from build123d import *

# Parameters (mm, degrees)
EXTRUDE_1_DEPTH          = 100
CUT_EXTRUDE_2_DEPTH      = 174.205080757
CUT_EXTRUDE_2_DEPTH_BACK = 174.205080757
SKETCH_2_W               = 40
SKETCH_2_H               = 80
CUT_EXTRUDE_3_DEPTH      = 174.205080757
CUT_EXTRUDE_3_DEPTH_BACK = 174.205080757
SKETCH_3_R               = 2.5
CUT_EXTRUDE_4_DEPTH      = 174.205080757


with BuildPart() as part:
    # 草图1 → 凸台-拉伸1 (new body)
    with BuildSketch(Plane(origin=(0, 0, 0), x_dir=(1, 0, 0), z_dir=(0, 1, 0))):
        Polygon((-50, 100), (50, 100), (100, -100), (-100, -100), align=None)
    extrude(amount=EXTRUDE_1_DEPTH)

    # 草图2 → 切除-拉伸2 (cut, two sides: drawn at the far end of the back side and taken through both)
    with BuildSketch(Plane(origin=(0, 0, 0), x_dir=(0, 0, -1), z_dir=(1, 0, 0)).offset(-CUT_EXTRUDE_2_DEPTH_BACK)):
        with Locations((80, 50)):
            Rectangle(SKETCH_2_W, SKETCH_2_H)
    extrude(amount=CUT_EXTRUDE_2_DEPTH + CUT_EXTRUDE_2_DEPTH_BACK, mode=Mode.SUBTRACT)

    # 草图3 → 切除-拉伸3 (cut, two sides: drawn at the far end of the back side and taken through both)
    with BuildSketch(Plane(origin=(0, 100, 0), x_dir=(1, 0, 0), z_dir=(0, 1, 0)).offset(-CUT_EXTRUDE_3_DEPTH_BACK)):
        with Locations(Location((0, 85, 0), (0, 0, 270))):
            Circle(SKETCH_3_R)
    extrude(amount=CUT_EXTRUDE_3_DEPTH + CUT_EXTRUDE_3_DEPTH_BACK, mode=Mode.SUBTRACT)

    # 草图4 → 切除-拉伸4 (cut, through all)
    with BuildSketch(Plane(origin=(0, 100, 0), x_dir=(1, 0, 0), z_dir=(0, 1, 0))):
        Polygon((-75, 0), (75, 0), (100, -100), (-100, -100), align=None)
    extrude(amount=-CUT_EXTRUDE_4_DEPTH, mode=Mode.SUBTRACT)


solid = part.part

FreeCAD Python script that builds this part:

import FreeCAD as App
import Part
import Sketcher

doc = App.newDocument("Part")
body = doc.addObject("PartDesign::Body", "Body")

sketch1 = body.newObject("Sketcher::SketchObject", "Sketch")
sketch1.AttachmentSupport = (doc.getObject("XZ_Plane"), [""])
sketch1.MapMode = "FlatFace"
sketch1.addGeometry([
    Part.LineSegment(App.Vector(50, -100, 0), App.Vector(-50, -100, 0)),
    Part.LineSegment(App.Vector(-50, -100, 0), App.Vector(-100, 100, 0)),
    Part.LineSegment(App.Vector(-100, 100, 0), App.Vector(100, 100, 0)),
    Part.LineSegment(App.Vector(100, 100, 0), App.Vector(50, -100, 0)),
], False)
sketch1.addConstraint([
    Sketcher.Constraint("Coincident", 0, 2, 1, 1),
    Sketcher.Constraint("Coincident", 1, 2, 2, 1),
    Sketcher.Constraint("Coincident", 2, 2, 3, 1),
    Sketcher.Constraint("Coincident", 3, 2, 0, 1),
    Sketcher.Constraint("Horizontal", 0),
    Sketcher.Constraint("Horizontal", 2),
    Sketcher.Constraint("Equal", 1, 3),
    Sketcher.Constraint("DistanceX", 0, 2, 0, 1, 100.0),
    Sketcher.Constraint("DistanceX", 2, 1, 2, 2, 200.0),
    Sketcher.Constraint("DistanceX", 0, 2, -1, 1, 50.0),
    Sketcher.Constraint("DistanceY", 0, 2, -1, 1, 100.0),
    Sketcher.Constraint("DistanceY", -1, 1, 1, 2, 100.0),
])
pad1 = body.newObject("PartDesign::Pad", "Pad")
pad1.Profile = sketch1
pad1.Length = 100
pad1.Reversed = True

sketch2 = body.newObject("Sketcher::SketchObject", "Sketch001")
sketch2.AttachmentSupport = (doc.getObject("YZ_Plane"), [""])
sketch2.MapMode = "FlatFace"
sketch2.addGeometry([
    Part.LineSegment(App.Vector(90, -60, 0), App.Vector(10, -60, 0)),
    Part.LineSegment(App.Vector(10, -60, 0), App.Vector(10, -100, 0)),
    Part.LineSegment(App.Vector(10, -100, 0), App.Vector(90, -100, 0)),
    Part.LineSegment(App.Vector(90, -100, 0), App.Vector(90, -60, 0)),
], False)
sketch2.addConstraint([
    Sketcher.Constraint("Coincident", 0, 2, 1, 1),
    Sketcher.Constraint("Coincident", 1, 2, 2, 1),
    Sketcher.Constraint("Coincident", 2, 2, 3, 1),
    Sketcher.Constraint("Coincident", 3, 2, 0, 1),
    Sketcher.Constraint("Horizontal", 0),
    Sketcher.Constraint("Vertical", 1),
    Sketcher.Constraint("Horizontal", 2),
    Sketcher.Constraint("Vertical", 3),
    Sketcher.Constraint("DistanceX", 0, 2, 0, 1, 80.0),
    Sketcher.Constraint("DistanceY", 1, 2, 1, 1, 40.0),
    Sketcher.Constraint("DistanceX", -1, 1, 0, 2, 10.0),
    Sketcher.Constraint("DistanceY", 0, 2, -1, 1, 60.0),
])
pocket1 = body.newObject("PartDesign::Pocket", "Pocket")
pocket1.Profile = sketch2
pocket1.Type = "ThroughAll"
pocket1.Midplane = True

sketch3 = body.newObject("Sketcher::SketchObject", "Sketch002")
sketch3.AttachmentSupport = (doc.getObject("XZ_Plane"), [""])
sketch3.MapMode = "FlatFace"
sketch3.AttachmentOffset = App.Placement(App.Vector(0, 0, -100), App.Rotation())
sketch3.addGeometry(Part.Circle(App.Vector(0, -85, 0), App.Vector(0, 0, 1), 2.5), False)
sketch3.addConstraint([
    Sketcher.Constraint("PointOnObject", 0, 3, -2),
    Sketcher.Constraint("Diameter", 0, 5.0),
    Sketcher.Constraint("DistanceY", 0, 3, -1, 1, 85.0),
])
pocket2 = body.newObject("PartDesign::Pocket", "Pocket001")
pocket2.Profile = sketch3
pocket2.Type = "ThroughAll"
pocket2.Midplane = True

sketch4 = body.newObject("Sketcher::SketchObject", "Sketch003")
sketch4.AttachmentSupport = (doc.getObject("XZ_Plane"), [""])
sketch4.MapMode = "FlatFace"
sketch4.AttachmentOffset = App.Placement(App.Vector(0, 0, -100), App.Rotation())
sketch4.addGeometry([
    Part.LineSegment(App.Vector(75, 0, 0), App.Vector(-75, 0, 0)),
    Part.LineSegment(App.Vector(-75, 0, 0), App.Vector(-100, 100, 0)),
    Part.LineSegment(App.Vector(-100, 100, 0), App.Vector(100, 100, 0)),
    Part.LineSegment(App.Vector(100, 100, 0), App.Vector(75, 0, 0)),
], False)
sketch4.addConstraint([
    Sketcher.Constraint("Coincident", 0, 2, 1, 1),
    Sketcher.Constraint("Coincident", 1, 2, 2, 1),
    Sketcher.Constraint("Coincident", 2, 2, 3, 1),
    Sketcher.Constraint("Coincident", 3, 2, 0, 1),
    Sketcher.Constraint("Horizontal", 0),
    Sketcher.Constraint("Horizontal", 2),
    Sketcher.Constraint("Symmetric", 0, 2, 3, 2, -1, 1),
    Sketcher.Constraint("Equal", 1, 3),
    Sketcher.Constraint("DistanceX", 0, 2, 0, 1, 150.0),
    Sketcher.Constraint("DistanceX", 2, 1, 2, 2, 200.0),
    Sketcher.Constraint("DistanceY", -1, 1, 1, 2, 100.0),
])
pocket3 = body.newObject("PartDesign::Pocket", "Pocket002")
pocket3.Profile = sketch4
pocket3.Type = "ThroughAll"
pocket3.Reversed = True

doc.recompute()
